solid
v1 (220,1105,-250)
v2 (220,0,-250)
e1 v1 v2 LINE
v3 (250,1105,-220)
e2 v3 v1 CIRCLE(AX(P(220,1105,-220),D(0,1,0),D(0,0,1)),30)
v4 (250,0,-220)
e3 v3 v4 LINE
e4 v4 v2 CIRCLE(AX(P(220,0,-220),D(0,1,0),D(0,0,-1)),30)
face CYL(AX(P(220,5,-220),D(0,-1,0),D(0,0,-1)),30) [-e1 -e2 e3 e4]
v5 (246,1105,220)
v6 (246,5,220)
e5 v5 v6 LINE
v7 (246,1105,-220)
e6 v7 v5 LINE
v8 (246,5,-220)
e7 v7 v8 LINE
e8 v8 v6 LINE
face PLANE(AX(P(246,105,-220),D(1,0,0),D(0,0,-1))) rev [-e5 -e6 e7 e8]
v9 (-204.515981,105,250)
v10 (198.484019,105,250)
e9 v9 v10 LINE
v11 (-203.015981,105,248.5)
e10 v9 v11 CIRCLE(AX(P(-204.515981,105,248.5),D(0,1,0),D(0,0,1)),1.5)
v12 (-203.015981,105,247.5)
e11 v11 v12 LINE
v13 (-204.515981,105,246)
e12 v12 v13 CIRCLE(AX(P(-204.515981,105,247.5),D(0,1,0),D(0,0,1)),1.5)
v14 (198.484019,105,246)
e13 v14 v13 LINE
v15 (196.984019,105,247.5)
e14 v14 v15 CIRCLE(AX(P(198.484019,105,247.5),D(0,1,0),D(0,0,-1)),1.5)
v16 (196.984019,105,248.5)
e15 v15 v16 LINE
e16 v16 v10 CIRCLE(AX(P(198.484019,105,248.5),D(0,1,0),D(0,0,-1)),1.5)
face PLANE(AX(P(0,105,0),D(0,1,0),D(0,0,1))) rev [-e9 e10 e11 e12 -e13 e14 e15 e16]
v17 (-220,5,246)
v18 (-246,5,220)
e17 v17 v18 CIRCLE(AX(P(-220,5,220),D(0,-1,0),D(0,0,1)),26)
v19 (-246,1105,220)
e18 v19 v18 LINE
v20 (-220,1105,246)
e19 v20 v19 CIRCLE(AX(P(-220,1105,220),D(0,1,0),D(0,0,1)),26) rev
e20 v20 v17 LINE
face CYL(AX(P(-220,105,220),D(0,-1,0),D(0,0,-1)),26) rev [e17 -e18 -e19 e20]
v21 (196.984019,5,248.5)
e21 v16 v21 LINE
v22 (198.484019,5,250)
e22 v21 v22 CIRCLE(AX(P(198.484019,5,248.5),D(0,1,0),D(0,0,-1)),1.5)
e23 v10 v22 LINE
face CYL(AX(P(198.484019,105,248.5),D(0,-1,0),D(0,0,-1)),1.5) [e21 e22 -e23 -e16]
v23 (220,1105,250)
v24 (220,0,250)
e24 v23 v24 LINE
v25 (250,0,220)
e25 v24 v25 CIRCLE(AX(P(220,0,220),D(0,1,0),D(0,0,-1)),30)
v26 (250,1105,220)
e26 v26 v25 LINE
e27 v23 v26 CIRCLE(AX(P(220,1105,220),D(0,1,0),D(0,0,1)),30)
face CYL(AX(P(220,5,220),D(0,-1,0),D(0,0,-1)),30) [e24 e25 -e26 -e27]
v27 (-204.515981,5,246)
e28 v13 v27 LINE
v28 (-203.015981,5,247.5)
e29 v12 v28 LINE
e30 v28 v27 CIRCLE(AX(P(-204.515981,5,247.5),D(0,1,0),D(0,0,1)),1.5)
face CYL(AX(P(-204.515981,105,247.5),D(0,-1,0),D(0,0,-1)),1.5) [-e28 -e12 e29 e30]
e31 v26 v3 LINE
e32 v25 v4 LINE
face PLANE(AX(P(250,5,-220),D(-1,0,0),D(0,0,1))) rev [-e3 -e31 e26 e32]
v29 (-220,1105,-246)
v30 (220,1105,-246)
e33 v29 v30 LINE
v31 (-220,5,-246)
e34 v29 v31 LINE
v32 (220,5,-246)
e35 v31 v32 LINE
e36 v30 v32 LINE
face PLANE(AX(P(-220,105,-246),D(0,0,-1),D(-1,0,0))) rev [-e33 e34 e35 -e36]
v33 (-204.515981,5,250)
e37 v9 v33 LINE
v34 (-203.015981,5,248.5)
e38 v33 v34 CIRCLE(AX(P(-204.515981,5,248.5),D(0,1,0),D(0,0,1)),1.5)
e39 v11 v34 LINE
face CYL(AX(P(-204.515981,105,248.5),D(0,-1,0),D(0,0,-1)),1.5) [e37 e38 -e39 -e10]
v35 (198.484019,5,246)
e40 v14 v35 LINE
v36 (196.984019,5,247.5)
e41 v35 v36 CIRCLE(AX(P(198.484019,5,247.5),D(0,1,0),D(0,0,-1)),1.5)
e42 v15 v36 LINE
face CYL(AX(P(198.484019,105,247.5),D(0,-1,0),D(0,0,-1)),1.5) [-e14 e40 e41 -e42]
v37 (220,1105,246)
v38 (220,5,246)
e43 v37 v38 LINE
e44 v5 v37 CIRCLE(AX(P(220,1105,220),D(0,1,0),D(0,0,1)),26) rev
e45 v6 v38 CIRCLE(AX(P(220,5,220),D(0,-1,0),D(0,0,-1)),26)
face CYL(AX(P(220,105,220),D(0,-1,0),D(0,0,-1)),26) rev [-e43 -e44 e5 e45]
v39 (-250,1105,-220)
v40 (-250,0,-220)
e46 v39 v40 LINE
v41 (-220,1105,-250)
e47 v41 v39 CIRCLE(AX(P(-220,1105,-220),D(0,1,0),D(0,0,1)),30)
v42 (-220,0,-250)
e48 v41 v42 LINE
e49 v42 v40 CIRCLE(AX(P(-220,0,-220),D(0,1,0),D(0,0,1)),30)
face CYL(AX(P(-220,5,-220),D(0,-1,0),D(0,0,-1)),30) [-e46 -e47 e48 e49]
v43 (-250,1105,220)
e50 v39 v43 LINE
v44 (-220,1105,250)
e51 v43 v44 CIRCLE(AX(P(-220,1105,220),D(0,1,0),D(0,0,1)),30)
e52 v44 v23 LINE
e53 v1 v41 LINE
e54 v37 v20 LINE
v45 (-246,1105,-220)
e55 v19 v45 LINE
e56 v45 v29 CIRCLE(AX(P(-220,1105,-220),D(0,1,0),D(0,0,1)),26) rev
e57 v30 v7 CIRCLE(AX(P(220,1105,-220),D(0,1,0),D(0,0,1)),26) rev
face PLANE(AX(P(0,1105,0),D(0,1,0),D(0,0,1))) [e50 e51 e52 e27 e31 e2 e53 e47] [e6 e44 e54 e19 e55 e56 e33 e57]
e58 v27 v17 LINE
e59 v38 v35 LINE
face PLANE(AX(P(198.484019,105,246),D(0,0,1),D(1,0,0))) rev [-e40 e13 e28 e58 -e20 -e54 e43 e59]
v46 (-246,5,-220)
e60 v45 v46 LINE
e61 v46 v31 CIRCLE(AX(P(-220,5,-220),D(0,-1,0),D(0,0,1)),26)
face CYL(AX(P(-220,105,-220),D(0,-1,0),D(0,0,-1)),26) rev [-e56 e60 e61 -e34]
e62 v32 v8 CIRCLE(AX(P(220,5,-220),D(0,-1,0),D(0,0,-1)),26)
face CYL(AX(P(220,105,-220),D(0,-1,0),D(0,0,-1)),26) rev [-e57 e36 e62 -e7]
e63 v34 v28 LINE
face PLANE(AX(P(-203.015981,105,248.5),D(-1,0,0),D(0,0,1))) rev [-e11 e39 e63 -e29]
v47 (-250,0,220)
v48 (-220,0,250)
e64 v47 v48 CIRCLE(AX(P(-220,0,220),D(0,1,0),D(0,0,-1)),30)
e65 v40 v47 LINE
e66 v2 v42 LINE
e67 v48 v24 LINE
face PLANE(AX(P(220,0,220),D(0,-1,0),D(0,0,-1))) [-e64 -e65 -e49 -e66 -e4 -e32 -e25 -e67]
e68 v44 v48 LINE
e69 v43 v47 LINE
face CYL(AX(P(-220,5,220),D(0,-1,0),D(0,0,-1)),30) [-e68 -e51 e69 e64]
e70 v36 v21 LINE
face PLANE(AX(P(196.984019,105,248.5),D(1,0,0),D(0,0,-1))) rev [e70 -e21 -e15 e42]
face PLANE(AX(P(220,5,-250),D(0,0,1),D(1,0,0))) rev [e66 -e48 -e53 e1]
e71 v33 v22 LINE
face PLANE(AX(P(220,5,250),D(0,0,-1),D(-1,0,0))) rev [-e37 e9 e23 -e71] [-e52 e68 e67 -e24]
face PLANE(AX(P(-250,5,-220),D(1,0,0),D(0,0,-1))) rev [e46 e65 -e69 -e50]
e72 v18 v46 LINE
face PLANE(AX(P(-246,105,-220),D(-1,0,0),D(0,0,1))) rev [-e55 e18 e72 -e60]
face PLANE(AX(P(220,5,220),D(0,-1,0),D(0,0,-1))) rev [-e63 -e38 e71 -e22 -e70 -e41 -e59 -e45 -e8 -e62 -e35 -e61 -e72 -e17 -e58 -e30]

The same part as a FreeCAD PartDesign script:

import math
import FreeCAD as App
import Part
import Sketcher

doc = App.newDocument("Part")
body = doc.addObject("PartDesign::Body", "Body")

sketch1 = body.newObject("Sketcher::SketchObject", "Sketch")
sketch1.AttachmentSupport = (doc.getObject("XZ_Plane"), [""])
sketch1.MapMode = "FlatFace"
sketch1.addGeometry([
    Part.LineSegment(App.Vector(220, -250, 0), App.Vector(-220, -250, 0)),
    Part.ArcOfCircle(Part.Circle(App.Vector(-220, -220, 0), App.Vector(0, 0, 1), 30), math.radians(180), math.radians(270)),
    Part.LineSegment(App.Vector(-250, -220, 0), App.Vector(-250, 220, 0)),
    Part.ArcOfCircle(Part.Circle(App.Vector(-220, 220, 0), App.Vector(0, 0, 1), 30), math.radians(90), math.radians(180)),
    Part.LineSegment(App.Vector(-220, 250, 0), App.Vector(220, 250, 0)),
    Part.ArcOfCircle(Part.Circle(App.Vector(220, 220, 0), App.Vector(0, 0, 1), 30), math.radians(0), math.radians(90)),
    Part.LineSegment(App.Vector(250, 220, 0), App.Vector(250, -220, 0)),
    Part.ArcOfCircle(Part.Circle(App.Vector(220, -220, 0), App.Vector(0, 0, 1), 30), math.radians(-90), math.radians(0)),
], False)
sketch1.addConstraint([
    Sketcher.Constraint("Tangent", 0, 2, 1, 2),
    Sketcher.Constraint("Tangent", 1, 1, 2, 1),
    Sketcher.Constraint("Tangent", 2, 2, 3, 2),
    Sketcher.Constraint("Tangent", 3, 1, 4, 1),
    Sketcher.Constraint("Tangent", 4, 2, 5, 2),
    Sketcher.Constraint("Tangent", 5, 1, 6, 1),
    Sketcher.Constraint("Tangent", 6, 2, 7, 2),
    Sketcher.Constraint("Tangent", 7, 1, 0, 1),
    Sketcher.Constraint("Horizontal", 0),
    Sketcher.Constraint("Vertical", 2),
    Sketcher.Constraint("Horizontal", 4),
    Sketcher.Constraint("Vertical", 6),
    Sketcher.Constraint("Equal", 1, 3),
    Sketcher.Constraint("Equal", 3, 5),
    Sketcher.Constraint("Equal", 5, 7),
    Sketcher.Constraint("Symmetric", 1, 3, 5, 3, -1, 1),
    Sketcher.Constraint("Equal", 4, 2),
    Sketcher.Constraint("Radius", 1, 30.0),
    Sketcher.Constraint("DistanceX", 0, 2, 0, 1, 440.0),
])
pad1 = body.newObject("PartDesign::Pad", "Pad")
pad1.Profile = sketch1
pad1.Length = 5
pad1.Reversed = True

sketch2 = body.newObject("Sketcher::SketchObject", "Sketch001")
sketch2.AttachmentSupport = (doc.getObject("XZ_Plane"), [""])
sketch2.MapMode = "FlatFace"
sketch2.AttachmentOffset = App.Placement(App.Vector(0, 0, -5), App.Rotation())
sketch2.addGeometry([
    Part.LineSegment(App.Vector(-204.5, 246, 0), App.Vector(-220, 246, 0)),
    Part.ArcOfCircle(Part.Circle(App.Vector(-220, 220, 0), App.Vector(0, 0, 1), 26), math.radians(90), math.radians(180)),
    Part.LineSegment(App.Vector(-246, 220, 0), App.Vector(-246, -220, 0)),
    Part.ArcOfCircle(Part.Circle(App.Vector(-220, -220, 0), App.Vector(0, 0, 1), 26), math.radians(180), math.radians(270)),
    Part.LineSegment(App.Vector(-220, -246, 0), App.Vector(220, -246, 0)),
    Part.ArcOfCircle(Part.Circle(App.Vector(220, -220, 0), App.Vector(0, 0, 1), 26), math.radians(-90), math.radians(0)),
    Part.LineSegment(App.Vector(246, -220, 0), App.Vector(246, 220, 0)),
    Part.ArcOfCircle(Part.Circle(App.Vector(220, 220, 0), App.Vector(0, 0, 1), 26), math.radians(0), math.radians(90)),
    Part.LineSegment(App.Vector(220, 246, 0), App.Vector(198.5, 246, 0)),
    Part.ArcOfCircle(Part.Circle(App.Vector(198.5, 247.5, 0), App.Vector(0, 0, 1), 1.5), math.radians(180), math.radians(270)),
    Part.LineSegment(App.Vector(197, 247.5, 0), App.Vector(197, 248.5, 0)),
    Part.ArcOfCircle(Part.Circle(App.Vector(198.5, 248.5, 0), App.Vector(0, 0, 1), 1.5), math.radians(90), math.radians(180)),
    Part.LineSegment(App.Vector(198.5, 250, 0), App.Vector(220, 250, 0)),
    Part.ArcOfCircle(Part.Circle(App.Vector(220, 220, 0), App.Vector(0, 0, 1), 30), math.radians(0), math.radians(90)),
    Part.LineSegment(App.Vector(250, 220, 0), App.Vector(250, -220, 0)),
    Part.ArcOfCircle(Part.Circle(App.Vector(220, -220, 0), App.Vector(0, 0, 1), 30), math.radians(-90), math.radians(0)),
    Part.LineSegment(App.Vector(220, -250, 0), App.Vector(-220, -250, 0)),
    Part.ArcOfCircle(Part.Circle(App.Vector(-220, -220, 0), App.Vector(0, 0, 1), 30), math.radians(180), math.radians(270)),
    Part.LineSegment(App.Vector(-250, -220, 0), App.Vector(-250, 220, 0)),
    Part.ArcOfCircle(Part.Circle(App.Vector(-220, 220, 0), App.Vector(0, 0, 1), 30), math.radians(90), math.radians(180)),
    Part.LineSegment(App.Vector(-220, 250, 0), App.Vector(-204.5, 250, 0)),
    Part.ArcOfCircle(Part.Circle(App.Vector(-204.5, 248.5, 0), App.Vector(0, 0, 1), 1.5), math.radians(0), math.radians(90)),
    Part.LineSegment(App.Vector(-203, 248.5, 0), App.Vector(-203, 247.5, 0)),
    Part.ArcOfCircle(Part.Circle(App.Vector(-204.5, 247.5, 0), App.Vector(0, 0, 1), 1.5), math.radians(-90), math.radians(0)),
], False)
sketch2.addConstraint([
    Sketcher.Constraint("Tangent", 0, 2, 1, 1),
    Sketcher.Constraint("Tangent", 1, 2, 2, 1),
    Sketcher.Constraint("Tangent", 2, 2, 3, 1),
    Sketcher.Constraint("Tangent", 3, 2, 4, 1),
    Sketcher.Constraint("Tangent", 4, 2, 5, 1),
    Sketcher.Constraint("Tangent", 5, 2, 6, 1),
    Sketcher.Constraint("Tangent", 6, 2, 7, 1),
    Sketcher.Constraint("Tangent", 7, 2, 8, 1),
    Sketcher.Constraint("Tangent", 8, 2, 9, 2),
    Sketcher.Constraint("Tangent", 9, 1, 10, 1),
    Sketcher.Constraint("Tangent", 10, 2, 11, 2),
    Sketcher.Constraint("Tangent", 11, 1, 12, 1),
    Sketcher.Constraint("Tangent", 12, 2, 13, 2),
    Sketcher.Constraint("Tangent", 13, 1, 14, 1),
    Sketcher.Constraint("Tangent", 14, 2, 15, 2),
    Sketcher.Constraint("Tangent", 15, 1, 16, 1),
    Sketcher.Constraint("Tangent", 16, 2, 17, 2),
    Sketcher.Constraint("Tangent", 17, 1, 18, 1),
    Sketcher.Constraint("Tangent", 18, 2, 19, 2),
    Sketcher.Constraint("Tangent", 19, 1, 20, 1),
    Sketcher.Constraint("Tangent", 20, 2, 21, 2),
    Sketcher.Constraint("Tangent", 21, 1, 22, 1),
    Sketcher.Constraint("Tangent", 22, 2, 23, 2),
    Sketcher.Constraint("Tangent", 23, 1, 0, 1),
    Sketcher.Constraint("Horizontal", 0),
    Sketcher.Constraint("Vertical", 2),
    Sketcher.Constraint("Horizontal", 4),
    Sketcher.Constraint("Vertical", 6),
    Sketcher.Constraint("Horizontal", 8),
    Sketcher.Constraint("Vertical", 10),
    Sketcher.Constraint("Horizontal", 12),
    Sketcher.Constraint("Vertical", 14),
    Sketcher.Constraint("Horizontal", 16),
    Sketcher.Constraint("Vertical", 18),
    Sketcher.Constraint("Horizontal", 20),
    Sketcher.Constraint("Vertical", 22),
    Sketcher.Constraint("Coincident", 13, 3, 7, 3),
    Sketcher.Constraint("Coincident", 15, 3, 5, 3),
    Sketcher.Constraint("Coincident", 17, 3, 3, 3),
    Sketcher.Constraint("Coincident", 19, 3, 1, 3),
    Sketcher.Constraint("Equal", 1, 3),
    Sketcher.Constraint("Equal", 3, 5),
    Sketcher.Constraint("Equal", 5, 7),
    Sketcher.Constraint("Equal", 9, 11),
    Sketcher.Constraint("Equal", 11, 21),
    Sketcher.Constraint("Equal", 21, 23),
    Sketcher.Constraint("Symmetric", 1, 3, 5, 3, -1, 1),
    Sketcher.Constraint("Horizontal", 1, 3, 7, 3),
    Sketcher.Constraint("Equal", 16, 2),
    Sketcher.Constraint("Radius", 1, 26.0),
    Sketcher.Constraint("Radius", 13, 30.0),
    Sketcher.Constraint("Radius", 9, 1.5),
    Sketcher.Constraint("DistanceX", 4, 1, 4, 2, 440.0),
    Sketcher.Constraint("DistanceX", 21, 3, 11, 3, 403.0),
    Sketcher.Constraint("DistanceX", 0, 2, 0, 1, 15.484019),
])
pad2 = body.newObject("PartDesign::Pad", "Pad001")
pad2.Profile = sketch2
pad2.Length = 100
pad2.Reversed = True

sketch3 = body.newObject("Sketcher::SketchObject", "Sketch002")
sketch3.AttachmentSupport = (doc.getObject("XZ_Plane"), [""])
sketch3.MapMode = "FlatFace"
sketch3.AttachmentOffset = App.Placement(App.Vector(0, 0, -105), App.Rotation())
sketch3.addGeometry([
    Part.ArcOfCircle(Part.Circle(App.Vector(220, 220, 0), App.Vector(0, 0, 1), 30), math.radians(0), math.radians(90)),
    Part.LineSegment(App.Vector(250, 220, 0), App.Vector(250, -220, 0)),
    Part.ArcOfCircle(Part.Circle(App.Vector(220, -220, 0), App.Vector(0, 0, 1), 30), math.radians(-90), math.radians(0)),
    Part.LineSegment(App.Vector(220, -250, 0), App.Vector(-220, -250, 0)),
    Part.ArcOfCircle(Part.Circle(App.Vector(-220, -220, 0), App.Vector(0, 0, 1), 30), math.radians(180), math.radians(270)),
    Part.LineSegment(App.Vector(-250, -220, 0), App.Vector(-250, 220, 0)),
    Part.ArcOfCircle(Part.Circle(App.Vector(-220, 220, 0), App.Vector(0, 0, 1), 30), math.radians(90), math.radians(180)),
    Part.LineSegment(App.Vector(-220, 250, 0), App.Vector(220, 250, 0)),
    Part.ArcOfCircle(Part.Circle(App.Vector(-220, 220, 0), App.Vector(0, 0, 1), 26), math.radians(90), math.radians(180)),
    Part.LineSegment(App.Vector(-246, 220, 0), App.Vector(-246, -220, 0)),
    Part.ArcOfCircle(Part.Circle(App.Vector(-220, -220, 0), App.Vector(0, 0, 1), 26), math.radians(180), math.radians(270)),
    Part.LineSegment(App.Vector(-220, -246, 0), App.Vector(220, -246, 0)),
    Part.ArcOfCircle(Part.Circle(App.Vector(220, -220, 0), App.Vector(0, 0, 1), 26), math.radians(-90), math.radians(0)),
    Part.LineSegment(App.Vector(246, -220, 0), App.Vector(246, 220, 0)),
    Part.ArcOfCircle(Part.Circle(App.Vector(220, 220, 0), App.Vector(0, 0, 1), 26), math.radians(0), math.radians(90)),
    Part.LineSegment(App.Vector(220, 246, 0), App.Vector(-220, 246, 0)),
], False)
sketch3.addConstraint([
    Sketcher.Constraint("Tangent", 0, 1, 1, 1),
    Sketcher.Constraint("Tangent", 1, 2, 2, 2),
    Sketcher.Constraint("Tangent", 2, 1, 3, 1),
    Sketcher.Constraint("Tangent", 3, 2, 4, 2),
    Sketcher.Constraint("Tangent", 4, 1, 5, 1),
    Sketcher.Constraint("Tangent", 5, 2, 6, 2),
    Sketcher.Constraint("Tangent", 6, 1, 7, 1),
    Sketcher.Constraint("Tangent", 7, 2, 0, 2),
    Sketcher.Constraint("Tangent", 8, 2, 9, 1),
    Sketcher.Constraint("Tangent", 9, 2, 10, 1),
    Sketcher.Constraint("Tangent", 10, 2, 11, 1),
    Sketcher.Constraint("Tangent", 11, 2, 12, 1),
    Sketcher.Constraint("Tangent", 12, 2, 13, 1),
    Sketcher.Constraint("Tangent", 13, 2, 14, 1),
    Sketcher.Constraint("Tangent", 14, 2, 15, 1),
    Sketcher.Constraint("Tangent", 15, 2, 8, 1),
    Sketcher.Constraint("Vertical", 1),
    Sketcher.Constraint("Horizontal", 3),
    Sketcher.Constraint("Vertical", 5),
    Sketcher.Constraint("Horizontal", 7),
    Sketcher.Constraint("Vertical", 9),
    Sketcher.Constraint("Horizontal", 11),
    Sketcher.Constraint("Vertical", 13),
    Sketcher.Constraint("Horizontal", 15),
    Sketcher.Constraint("Coincident", 8, 3, 6, 3),
    Sketcher.Constraint("Coincident", 10, 3, 4, 3),
    Sketcher.Constraint("Coincident", 12, 3, 2, 3),
    Sketcher.Constraint("Equal", 0, 2),
    Sketcher.Constraint("Equal", 2, 4),
    Sketcher.Constraint("Equal", 4, 6),
    Sketcher.Constraint("Equal", 12, 14),
    Sketcher.Constraint("Symmetric", 0, 3, 4, 3, -1, 1),
    Sketcher.Constraint("Equal", 15, 1),
    Sketcher.Constraint("Radius", 0, 30.0),
    Sketcher.Constraint("Radius", 8, 26.0),
    Sketcher.Constraint("DistanceX", 3, 2, 3, 1, 440.0),
])
pad3 = body.newObject("PartDesign::Pad", "Pad002")
pad3.Profile = sketch3
pad3.Length = 1000
pad3.Reversed = True

doc.recompute()
